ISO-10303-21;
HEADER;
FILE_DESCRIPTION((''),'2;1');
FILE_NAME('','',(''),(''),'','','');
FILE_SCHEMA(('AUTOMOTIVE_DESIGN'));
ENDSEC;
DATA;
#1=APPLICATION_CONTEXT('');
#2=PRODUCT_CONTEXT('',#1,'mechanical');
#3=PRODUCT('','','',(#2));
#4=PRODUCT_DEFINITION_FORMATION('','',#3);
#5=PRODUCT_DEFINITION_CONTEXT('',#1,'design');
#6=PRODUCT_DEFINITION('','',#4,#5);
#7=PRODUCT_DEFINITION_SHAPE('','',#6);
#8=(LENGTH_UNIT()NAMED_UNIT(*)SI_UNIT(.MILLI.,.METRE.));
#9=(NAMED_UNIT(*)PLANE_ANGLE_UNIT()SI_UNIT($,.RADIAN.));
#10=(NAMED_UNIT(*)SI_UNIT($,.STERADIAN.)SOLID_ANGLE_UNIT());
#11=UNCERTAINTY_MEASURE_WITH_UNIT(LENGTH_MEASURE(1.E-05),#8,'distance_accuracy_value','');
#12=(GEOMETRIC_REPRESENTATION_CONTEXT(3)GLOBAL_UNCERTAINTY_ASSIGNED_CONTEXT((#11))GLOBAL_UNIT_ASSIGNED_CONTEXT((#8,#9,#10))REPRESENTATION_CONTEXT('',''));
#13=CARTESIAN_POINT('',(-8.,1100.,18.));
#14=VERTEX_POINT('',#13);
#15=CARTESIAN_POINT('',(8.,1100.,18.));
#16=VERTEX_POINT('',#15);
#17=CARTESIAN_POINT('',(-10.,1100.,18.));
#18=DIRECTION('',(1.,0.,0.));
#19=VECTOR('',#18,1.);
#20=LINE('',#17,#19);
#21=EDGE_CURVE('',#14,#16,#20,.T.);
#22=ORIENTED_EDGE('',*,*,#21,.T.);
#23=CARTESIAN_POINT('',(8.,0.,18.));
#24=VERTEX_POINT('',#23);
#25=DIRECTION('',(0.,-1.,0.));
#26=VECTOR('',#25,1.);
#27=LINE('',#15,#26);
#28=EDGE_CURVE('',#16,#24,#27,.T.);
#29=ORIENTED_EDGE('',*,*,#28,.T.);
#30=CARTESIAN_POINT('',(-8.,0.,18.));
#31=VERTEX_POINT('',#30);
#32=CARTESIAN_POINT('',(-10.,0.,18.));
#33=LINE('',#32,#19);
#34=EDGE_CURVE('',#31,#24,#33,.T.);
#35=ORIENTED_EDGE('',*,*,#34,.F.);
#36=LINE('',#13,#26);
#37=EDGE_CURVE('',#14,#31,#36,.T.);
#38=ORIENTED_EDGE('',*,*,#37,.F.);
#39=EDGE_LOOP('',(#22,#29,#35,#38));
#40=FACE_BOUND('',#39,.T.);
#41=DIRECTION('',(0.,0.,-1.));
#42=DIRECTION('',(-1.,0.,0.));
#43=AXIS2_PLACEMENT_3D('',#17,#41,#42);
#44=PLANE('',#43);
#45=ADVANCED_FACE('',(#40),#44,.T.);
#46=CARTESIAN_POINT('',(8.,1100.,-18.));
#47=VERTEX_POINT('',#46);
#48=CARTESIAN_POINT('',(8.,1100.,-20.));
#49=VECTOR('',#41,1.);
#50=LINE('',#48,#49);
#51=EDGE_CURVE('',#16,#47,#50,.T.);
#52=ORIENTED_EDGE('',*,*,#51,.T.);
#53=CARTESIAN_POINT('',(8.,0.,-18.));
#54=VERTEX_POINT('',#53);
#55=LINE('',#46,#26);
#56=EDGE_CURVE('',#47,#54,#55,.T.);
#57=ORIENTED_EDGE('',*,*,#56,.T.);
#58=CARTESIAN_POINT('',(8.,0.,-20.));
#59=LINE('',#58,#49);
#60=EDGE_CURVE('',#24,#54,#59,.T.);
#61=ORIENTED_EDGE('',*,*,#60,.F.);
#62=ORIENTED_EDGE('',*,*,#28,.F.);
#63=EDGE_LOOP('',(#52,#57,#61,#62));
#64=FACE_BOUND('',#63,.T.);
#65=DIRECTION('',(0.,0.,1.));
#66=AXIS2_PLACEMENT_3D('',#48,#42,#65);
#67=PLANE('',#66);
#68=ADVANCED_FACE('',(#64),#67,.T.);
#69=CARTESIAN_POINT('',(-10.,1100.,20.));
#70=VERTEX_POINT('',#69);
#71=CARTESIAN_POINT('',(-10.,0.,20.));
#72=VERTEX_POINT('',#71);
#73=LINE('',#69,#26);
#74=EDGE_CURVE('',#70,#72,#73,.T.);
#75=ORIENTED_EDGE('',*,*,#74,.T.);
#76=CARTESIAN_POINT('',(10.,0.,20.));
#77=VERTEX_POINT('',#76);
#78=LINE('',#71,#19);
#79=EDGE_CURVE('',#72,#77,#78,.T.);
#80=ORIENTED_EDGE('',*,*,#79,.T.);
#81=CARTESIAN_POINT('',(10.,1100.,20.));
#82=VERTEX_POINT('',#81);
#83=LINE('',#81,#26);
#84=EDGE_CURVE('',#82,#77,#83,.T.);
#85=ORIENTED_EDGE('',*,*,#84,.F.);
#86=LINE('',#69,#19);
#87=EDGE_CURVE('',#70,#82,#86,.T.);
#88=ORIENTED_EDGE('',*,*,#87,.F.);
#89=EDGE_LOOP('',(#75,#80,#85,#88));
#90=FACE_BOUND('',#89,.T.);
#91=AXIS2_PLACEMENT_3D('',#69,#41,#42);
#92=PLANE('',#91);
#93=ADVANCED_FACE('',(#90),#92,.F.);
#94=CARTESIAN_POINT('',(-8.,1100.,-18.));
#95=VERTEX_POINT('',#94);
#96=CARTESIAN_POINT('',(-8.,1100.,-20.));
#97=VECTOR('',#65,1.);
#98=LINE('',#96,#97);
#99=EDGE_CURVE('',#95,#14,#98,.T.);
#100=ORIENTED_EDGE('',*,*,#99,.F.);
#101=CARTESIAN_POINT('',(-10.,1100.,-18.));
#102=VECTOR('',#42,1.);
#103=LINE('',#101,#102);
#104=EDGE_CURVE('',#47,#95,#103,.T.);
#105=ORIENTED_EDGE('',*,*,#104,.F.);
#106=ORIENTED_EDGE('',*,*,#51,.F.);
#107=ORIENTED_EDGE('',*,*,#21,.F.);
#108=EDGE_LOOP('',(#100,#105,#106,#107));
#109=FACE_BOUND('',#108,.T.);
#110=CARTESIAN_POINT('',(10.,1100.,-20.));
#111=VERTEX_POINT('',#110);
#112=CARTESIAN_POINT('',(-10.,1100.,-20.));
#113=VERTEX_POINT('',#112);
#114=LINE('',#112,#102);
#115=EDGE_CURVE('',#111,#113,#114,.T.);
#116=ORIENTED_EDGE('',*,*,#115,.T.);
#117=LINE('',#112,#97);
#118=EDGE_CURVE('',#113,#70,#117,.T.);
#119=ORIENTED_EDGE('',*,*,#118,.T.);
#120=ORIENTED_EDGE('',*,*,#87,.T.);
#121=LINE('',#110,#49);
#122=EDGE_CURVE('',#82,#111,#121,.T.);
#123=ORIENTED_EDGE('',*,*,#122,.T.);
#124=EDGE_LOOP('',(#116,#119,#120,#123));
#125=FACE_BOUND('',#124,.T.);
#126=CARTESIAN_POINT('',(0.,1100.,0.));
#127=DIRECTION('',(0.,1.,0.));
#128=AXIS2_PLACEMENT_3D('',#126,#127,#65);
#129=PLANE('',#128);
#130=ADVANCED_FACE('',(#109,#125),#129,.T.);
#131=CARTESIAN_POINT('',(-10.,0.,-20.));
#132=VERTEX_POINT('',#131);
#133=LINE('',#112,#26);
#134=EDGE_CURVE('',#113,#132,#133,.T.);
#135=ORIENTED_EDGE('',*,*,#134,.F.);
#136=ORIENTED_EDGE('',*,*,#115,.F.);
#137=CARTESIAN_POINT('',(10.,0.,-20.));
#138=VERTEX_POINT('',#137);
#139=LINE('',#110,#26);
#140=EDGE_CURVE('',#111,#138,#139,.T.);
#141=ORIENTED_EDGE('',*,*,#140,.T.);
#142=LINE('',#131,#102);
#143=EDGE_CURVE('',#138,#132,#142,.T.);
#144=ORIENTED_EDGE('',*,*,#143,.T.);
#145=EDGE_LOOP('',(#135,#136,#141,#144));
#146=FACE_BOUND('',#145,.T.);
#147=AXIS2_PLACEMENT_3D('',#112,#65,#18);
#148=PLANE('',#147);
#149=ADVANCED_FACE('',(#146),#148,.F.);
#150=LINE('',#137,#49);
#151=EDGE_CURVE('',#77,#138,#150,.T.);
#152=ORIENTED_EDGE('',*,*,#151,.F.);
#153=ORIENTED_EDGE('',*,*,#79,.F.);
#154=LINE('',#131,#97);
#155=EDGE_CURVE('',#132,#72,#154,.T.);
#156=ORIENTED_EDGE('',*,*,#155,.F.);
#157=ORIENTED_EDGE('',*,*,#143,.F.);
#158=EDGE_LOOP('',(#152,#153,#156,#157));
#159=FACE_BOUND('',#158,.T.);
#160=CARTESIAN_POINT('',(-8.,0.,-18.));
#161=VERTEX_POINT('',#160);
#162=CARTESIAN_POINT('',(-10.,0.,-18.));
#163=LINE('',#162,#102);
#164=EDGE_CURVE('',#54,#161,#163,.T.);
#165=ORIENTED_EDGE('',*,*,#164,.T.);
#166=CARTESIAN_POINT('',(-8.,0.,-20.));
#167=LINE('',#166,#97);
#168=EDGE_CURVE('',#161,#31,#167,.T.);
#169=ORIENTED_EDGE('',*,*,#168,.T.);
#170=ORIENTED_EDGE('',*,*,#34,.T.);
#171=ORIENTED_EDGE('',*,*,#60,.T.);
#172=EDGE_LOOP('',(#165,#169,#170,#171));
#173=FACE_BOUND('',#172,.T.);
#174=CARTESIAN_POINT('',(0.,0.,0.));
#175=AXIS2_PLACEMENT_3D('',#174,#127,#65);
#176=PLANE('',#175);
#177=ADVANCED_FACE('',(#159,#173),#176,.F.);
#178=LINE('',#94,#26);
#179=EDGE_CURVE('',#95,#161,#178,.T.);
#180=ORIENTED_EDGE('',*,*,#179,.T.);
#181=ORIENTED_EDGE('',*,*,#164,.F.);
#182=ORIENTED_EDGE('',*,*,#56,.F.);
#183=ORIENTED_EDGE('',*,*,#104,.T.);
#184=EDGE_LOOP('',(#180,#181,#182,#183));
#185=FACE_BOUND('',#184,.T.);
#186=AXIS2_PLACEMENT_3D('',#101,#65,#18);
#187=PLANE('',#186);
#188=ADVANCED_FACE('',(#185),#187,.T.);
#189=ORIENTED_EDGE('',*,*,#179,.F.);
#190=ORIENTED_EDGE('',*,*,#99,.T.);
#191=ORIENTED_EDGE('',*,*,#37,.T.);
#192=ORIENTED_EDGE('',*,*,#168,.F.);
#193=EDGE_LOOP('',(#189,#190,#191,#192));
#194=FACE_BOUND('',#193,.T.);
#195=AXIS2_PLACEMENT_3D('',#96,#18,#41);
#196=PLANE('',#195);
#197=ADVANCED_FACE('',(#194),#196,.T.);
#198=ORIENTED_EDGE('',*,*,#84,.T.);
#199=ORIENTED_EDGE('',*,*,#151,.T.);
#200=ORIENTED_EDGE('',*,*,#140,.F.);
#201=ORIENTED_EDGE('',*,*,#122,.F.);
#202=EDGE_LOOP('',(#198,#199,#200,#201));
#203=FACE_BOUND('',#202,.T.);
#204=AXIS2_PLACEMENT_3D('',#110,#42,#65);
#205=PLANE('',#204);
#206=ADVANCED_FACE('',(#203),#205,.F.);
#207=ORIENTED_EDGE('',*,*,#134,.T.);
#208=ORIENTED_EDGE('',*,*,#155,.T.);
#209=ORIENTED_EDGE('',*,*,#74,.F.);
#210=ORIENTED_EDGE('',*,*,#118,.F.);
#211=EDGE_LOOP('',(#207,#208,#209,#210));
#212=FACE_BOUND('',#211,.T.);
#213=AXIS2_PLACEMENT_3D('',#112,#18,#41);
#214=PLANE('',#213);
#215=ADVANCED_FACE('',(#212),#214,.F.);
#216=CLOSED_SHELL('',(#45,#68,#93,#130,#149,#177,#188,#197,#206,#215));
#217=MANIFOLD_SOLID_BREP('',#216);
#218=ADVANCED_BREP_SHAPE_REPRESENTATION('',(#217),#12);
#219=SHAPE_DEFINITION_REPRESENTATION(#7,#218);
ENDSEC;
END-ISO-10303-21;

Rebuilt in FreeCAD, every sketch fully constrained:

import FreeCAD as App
import Part
import Sketcher
from FreeCAD import Vector
Q = App.Units.Quantity


def add_polygon(sketch, points):
    """Adds a closed chain of lines whose ends are joined by coincident constraints."""
    first, n = sketch.GeometryCount, len(points)
    for a, b in zip(points, points[1:] + points[:1]):
        sketch.addGeometry(Part.LineSegment(App.Vector(*a, 0), App.Vector(*b, 0)), False)
    for i in range(n):
        sketch.addConstraint(Sketcher.Constraint("Coincident", first + i, 2, first + (i + 1) % n, 1))

doc = App.newDocument("Part")
params = doc.addObject("Spreadsheet::Sheet", "Params")
for row, (alias, value) in enumerate([
    ("sketch1_width", "20 mm"),
    ("sketch1_width2", "16 mm"),
    ("sketch1_height", "40 mm"),
    ("sketch1_height2", "36 mm"),
    ("pad1_length", "1100 mm"),
], start=1):
    params.set(f"A{row}", alias)
    params.set(f"B{row}", "=" + value)
    params.setAlias(f"B{row}", alias)

body = doc.addObject("PartDesign::Body", "Body")

# Sketch on XZ plane
sketch1 = body.newObject("Sketcher::SketchObject", "Sketch")
sketch1.AttachmentSupport = (doc.getObject("XZ_Plane"), [""])
sketch1.MapMode = "FlatFace"
add_polygon(sketch1, [(-10, -20), (-10, 20), (10, 20), (10, -20)])  # lines 0-3
add_polygon(sketch1, [(8, 18), (-8, 18), (-8, -18), (8, -18)])  # lines 4-7
sketch1.addConstraint([
    Sketcher.Constraint("Vertical", 0),
    Sketcher.Constraint("Horizontal", 1),
    Sketcher.Constraint("Vertical", 2),
    Sketcher.Constraint("Horizontal", 3),
    Sketcher.Constraint("Horizontal", 4),
    Sketcher.Constraint("Vertical", 5),
    Sketcher.Constraint("Horizontal", 6),
    Sketcher.Constraint("Vertical", 7),
    Sketcher.Constraint("Symmetric", 0, 2, 2, 2, -1, 1),
    Sketcher.Constraint("Symmetric", 4, 2, 6, 2, -1, 1),
    Sketcher.Constraint("DistanceX", 1, 1, 1, 2, Q("20 mm")),
    Sketcher.Constraint("DistanceX", 4, 2, 4, 1, Q("16 mm")),
    Sketcher.Constraint("DistanceY", 0, 1, 0, 2, Q("40 mm")),
    Sketcher.Constraint("DistanceY", 5, 2, 5, 1, Q("36 mm")),
])
sketch1.setExpression("Constraints[18]", "Params.sketch1_width")
sketch1.setExpression("Constraints[19]", "Params.sketch1_width2")
sketch1.setExpression("Constraints[20]", "Params.sketch1_height")
sketch1.setExpression("Constraints[21]", "Params.sketch1_height2")
pad1 = body.newObject("PartDesign::Pad", "Pad")
pad1.Profile = sketch1
pad1.setExpression("Length", "Params.pad1_length")
pad1.Reversed = True

doc.recompute()
